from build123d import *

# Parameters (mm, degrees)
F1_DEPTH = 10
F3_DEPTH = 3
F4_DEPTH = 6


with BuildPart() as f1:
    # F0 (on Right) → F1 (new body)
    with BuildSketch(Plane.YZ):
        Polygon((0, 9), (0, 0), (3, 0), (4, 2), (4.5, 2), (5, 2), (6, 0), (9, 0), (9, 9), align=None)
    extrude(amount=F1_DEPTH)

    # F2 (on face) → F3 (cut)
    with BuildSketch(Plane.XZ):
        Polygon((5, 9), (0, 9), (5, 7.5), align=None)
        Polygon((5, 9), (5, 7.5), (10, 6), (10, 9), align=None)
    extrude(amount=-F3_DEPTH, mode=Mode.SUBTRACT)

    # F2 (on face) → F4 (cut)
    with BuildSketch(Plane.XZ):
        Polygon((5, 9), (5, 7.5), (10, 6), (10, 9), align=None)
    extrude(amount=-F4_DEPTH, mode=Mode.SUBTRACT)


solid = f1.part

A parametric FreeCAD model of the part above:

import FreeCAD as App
import Part
import Sketcher

V = App.Vector
Q = App.Units.Quantity


def add_polygon(sketch, points):
    """Adds a closed chain of lines whose ends are joined by coincident constraints."""
    first, n = sketch.GeometryCount, len(points)
    for a, b in zip(points, points[1:] + points[:1]):
        sketch.addGeometry(Part.LineSegment(App.Vector(*a, 0), App.Vector(*b, 0)), False)
    for i in range(n):
        sketch.addConstraint(Sketcher.Constraint("Coincident", first + i, 2, first + (i + 1) % n, 1))

doc = App.newDocument("Part")
body = doc.addObject("PartDesign::Body", "Body")

# Sketch on YZ plane
sketch1 = body.newObject("Sketcher::SketchObject", "Sketch")
sketch1.AttachmentSupport = (doc.getObject("YZ_Plane"), [""])
sketch1.MapMode = "FlatFace"
add_polygon(sketch1, [(0, 9), (0, 0), (3, 0), (4, 2), (5, 2), (6, 0), (9, 0), (9, 9)])  # lines 0-7
sketch1.addConstraint(Sketcher.Constraint("Vertical", 0))
sketch1.addConstraint(Sketcher.Constraint("Horizontal", 1))
sketch1.addConstraint(Sketcher.Constraint("Horizontal", 3))
sketch1.addConstraint(Sketcher.Constraint("Horizontal", 5))
sketch1.addConstraint(Sketcher.Constraint("Vertical", 6))
sketch1.addConstraint(Sketcher.Constraint("Horizontal", 7))
sketch1.addConstraint(Sketcher.Constraint("Coincident", 0, 2, -1, 1))
sketch1.addConstraint(Sketcher.Constraint("PointOnObject", 4, 2, -1))
sketch1.addConstraint(Sketcher.Constraint("Equal", 1, 5))
sketch1.addConstraint(Sketcher.Constraint("Equal", 7, 0))
sketch1.addConstraint(Sketcher.Constraint("Equal", 2, 4))
sketch1.addConstraint(Sketcher.Constraint("DistanceX", 1, 1, 1, 2, Q("3 mm")))
sketch1.addConstraint(Sketcher.Constraint("DistanceX", 3, 1, 3, 2, Q("1 mm")))
sketch1.addConstraint(Sketcher.Constraint("DistanceX", 7, 2, 7, 1, Q("9 mm")))
sketch1.addConstraint(Sketcher.Constraint("DistanceY", -1, 1, 2, 2, Q("2 mm")))
pad1 = body.newObject("PartDesign::Pad", "Pad")
pad1.Profile = sketch1
pad1.Length = 10

# Sketch on XZ plane
sketch2 = body.newObject("Sketcher::SketchObject", "Sketch001")
sketch2.AttachmentSupport = (doc.getObject("XZ_Plane"), [""])
sketch2.MapMode = "FlatFace"
add_polygon(sketch2, [(0, 9), (10, 6), (10, 9)])  # lines 0-2
sketch2.addConstraint(Sketcher.Constraint("Vertical", 1))
sketch2.addConstraint(Sketcher.Constraint("Horizontal", 2))
sketch2.addConstraint(Sketcher.Constraint("PointOnObject", 2, 2, -2))
sketch2.addConstraint(Sketcher.Constraint("DistanceX", 2, 2, 2, 1, Q("10 mm")))
sketch2.addConstraint(Sketcher.Constraint("DistanceY", 1, 1, 1, 2, Q("3 mm")))
sketch2.addConstraint(Sketcher.Constraint("DistanceY", -1, 1, 0, 2, Q("6 mm")))
pocket1 = body.newObject("PartDesign::Pocket", "Pocket")
pocket1.Profile = sketch2
pocket1.Length = 3

# Sketch on XZ plane
sketch3 = body.newObject("Sketcher::SketchObject", "Sketch002")
sketch3.AttachmentSupport = (doc.getObject("XZ_Plane"), [""])
sketch3.MapMode = "FlatFace"
add_polygon(sketch3, [(5, 9), (5, 7.5), (10, 6), (10, 9)])  # lines 0-3
sketch3.addConstraint(Sketcher.Constraint("Vertical", 0))
sketch3.addConstraint(Sketcher.Constraint("Vertical", 2))
sketch3.addConstraint(Sketcher.Constraint("Horizontal", 3))
sketch3.addConstraint(Sketcher.Constraint("DistanceX", 3, 2, 3, 1, Q("5 mm")))
sketch3.addConstraint(Sketcher.Constraint("DistanceY", 2, 1, 2, 2, Q("3 mm")))
sketch3.addConstraint(Sketcher.Constraint("DistanceY", 0, 2, 0, 1, Q("1.5 mm")))
sketch3.addConstraint(Sketcher.Constraint("DistanceX", -1, 1, 0, 2, Q("5 mm")))
sketch3.addConstraint(Sketcher.Constraint("DistanceY", -1, 1, 1, 2, Q("6 mm")))
pocket2 = body.newObject("PartDesign::Pocket", "Pocket001")
pocket2.Profile = sketch3
pocket2.Length = 6

doc.recompute()
